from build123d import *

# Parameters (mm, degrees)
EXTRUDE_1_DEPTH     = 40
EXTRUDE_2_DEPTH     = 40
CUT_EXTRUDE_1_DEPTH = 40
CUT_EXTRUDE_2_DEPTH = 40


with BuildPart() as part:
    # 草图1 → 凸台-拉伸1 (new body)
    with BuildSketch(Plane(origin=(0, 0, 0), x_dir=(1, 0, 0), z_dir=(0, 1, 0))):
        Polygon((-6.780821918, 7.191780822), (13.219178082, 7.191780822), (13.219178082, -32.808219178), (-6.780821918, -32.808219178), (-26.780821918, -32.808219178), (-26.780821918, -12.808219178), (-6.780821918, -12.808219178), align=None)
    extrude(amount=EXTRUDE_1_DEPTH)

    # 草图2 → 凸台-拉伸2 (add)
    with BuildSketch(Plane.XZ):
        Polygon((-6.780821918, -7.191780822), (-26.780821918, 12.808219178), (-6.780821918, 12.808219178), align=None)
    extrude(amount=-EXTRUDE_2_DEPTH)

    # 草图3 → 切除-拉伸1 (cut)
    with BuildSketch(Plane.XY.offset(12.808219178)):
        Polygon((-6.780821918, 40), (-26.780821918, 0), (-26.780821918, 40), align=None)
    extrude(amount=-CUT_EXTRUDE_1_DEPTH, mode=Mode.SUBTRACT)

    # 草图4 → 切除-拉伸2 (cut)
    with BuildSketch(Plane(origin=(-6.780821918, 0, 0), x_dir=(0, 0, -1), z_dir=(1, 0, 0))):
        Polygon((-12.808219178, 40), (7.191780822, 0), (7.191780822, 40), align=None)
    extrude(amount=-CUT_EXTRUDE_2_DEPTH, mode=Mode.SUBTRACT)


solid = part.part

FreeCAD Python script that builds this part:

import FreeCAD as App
import Part
import Sketcher
Q = App.Units.Quantity


def add_polygon(sketch, points):
    """Adds a closed chain of lines whose ends are joined by coincident constraints."""
    first, n = sketch.GeometryCount, len(points)
    for a, b in zip(points, points[1:] + points[:1]):
        sketch.addGeometry(Part.LineSegment(App.Vector(*a, 0), App.Vector(*b, 0)), False)
    for i in range(n):
        sketch.addConstraint(Sketcher.Constraint("Coincident", first + i, 2, first + (i + 1) % n, 1))

doc = App.newDocument("Part")
body = doc.addObject("PartDesign::Body", "Body")

# Sketch on XZ plane
sketch1 = body.newObject("Sketcher::SketchObject", "Sketch")
sketch1.AttachmentSupport = (doc.getObject("XZ_Plane"), [""])
sketch1.MapMode = "FlatFace"
add_polygon(sketch1, [(13, -7), (-7, -7), (-7, 13), (-27, 13), (-27, 33), (13, 33)])  # lines 0-5
sketch1.addConstraint(Sketcher.Constraint("Horizontal", 0))
sketch1.addConstraint(Sketcher.Constraint("Vertical", 1))
sketch1.addConstraint(Sketcher.Constraint("Horizontal", 2))
sketch1.addConstraint(Sketcher.Constraint("Vertical", 3))
sketch1.addConstraint(Sketcher.Constraint("Horizontal", 4))
sketch1.addConstraint(Sketcher.Constraint("Vertical", 5))
sketch1.addConstraint(Sketcher.Constraint("Equal", 0, 2))
sketch1.addConstraint(Sketcher.Constraint("Equal", 2, 1))
sketch1.addConstraint(Sketcher.Constraint("Equal", 1, 3))
sketch1.addConstraint(Sketcher.Constraint("DistanceX", 0, 2, 0, 1, Q("20 mm")))
sketch1.addConstraint(Sketcher.Constraint("DistanceX", 0, 2, -1, 1, Q("6.780822 mm")))
sketch1.addConstraint(Sketcher.Constraint("DistanceY", 0, 2, -1, 1, Q("7.191781 mm")))
pad1 = body.newObject("PartDesign::Pad", "Pad")
pad1.Profile = sketch1
pad1.Length = 40
pad1.Reversed = True

# Sketch on XZ plane
sketch2 = body.newObject("Sketcher::SketchObject", "Sketch001")
sketch2.AttachmentSupport = (doc.getObject("XZ_Plane"), [""])
sketch2.MapMode = "FlatFace"
add_polygon(sketch2, [(-27, 13), (-7, -7), (-7, 13)])  # lines 0-2
sketch2.addConstraint(Sketcher.Constraint("Vertical", 1))
sketch2.addConstraint(Sketcher.Constraint("Horizontal", 2))
sketch2.addConstraint(Sketcher.Constraint("Equal", 2, 1))
sketch2.addConstraint(Sketcher.Constraint("DistanceX", 2, 2, 2, 1, Q("20 mm")))
sketch2.addConstraint(Sketcher.Constraint("DistanceX", 0, 2, -1, 1, Q("6.780822 mm")))
sketch2.addConstraint(Sketcher.Constraint("DistanceY", 0, 2, -1, 1, Q("7.191781 mm")))
pad2 = body.newObject("PartDesign::Pad", "Pad001")
pad2.Profile = sketch2
pad2.Length = 40
pad2.Reversed = True

# Sketch on XY plane
sketch3 = body.newObject("Sketcher::SketchObject", "Sketch002")
sketch3.AttachmentSupport = (doc.getObject("XY_Plane"), [""])
sketch3.MapMode = "FlatFace"
sketch3.AttachmentOffset = App.Placement(App.Vector(0, 0, 12.808219), App.Rotation())
add_polygon(sketch3, [(-27, 0), (-7, 40), (-27, 40)])  # lines 0-2
sketch3.addConstraint(Sketcher.Constraint("Horizontal", 1))
sketch3.addConstraint(Sketcher.Constraint("Vertical", 2))
sketch3.addConstraint(Sketcher.Constraint("PointOnObject", 2, 2, -1))
sketch3.addConstraint(Sketcher.Constraint("DistanceX", 1, 2, 1, 1, Q("20 mm")))
sketch3.addConstraint(Sketcher.Constraint("DistanceY", 2, 2, 2, 1, Q("40 mm")))
sketch3.addConstraint(Sketcher.Constraint("DistanceX", 0, 2, -1, 1, Q("6.780822 mm")))
pocket1 = body.newObject("PartDesign::Pocket", "Pocket")
pocket1.Profile = sketch3
pocket1.Length = 40

# Sketch on YZ plane
sketch4 = body.newObject("Sketcher::SketchObject", "Sketch003")
sketch4.AttachmentSupport = (doc.getObject("YZ_Plane"), [""])
sketch4.MapMode = "FlatFace"
sketch4.AttachmentOffset = App.Placement(App.Vector(0, 0, -6.780822), App.Rotation())
add_polygon(sketch4, [(40, 13), (0, -7), (40, -7)])  # lines 0-2
sketch4.addConstraint(Sketcher.Constraint("Horizontal", 1))
sketch4.addConstraint(Sketcher.Constraint("Vertical", 2))
sketch4.addConstraint(Sketcher.Constraint("PointOnObject", 0, 2, -2))
sketch4.addConstraint(Sketcher.Constraint("DistanceX", 1, 1, 1, 2, Q("40 mm")))
sketch4.addConstraint(Sketcher.Constraint("DistanceY", 2, 1, 2, 2, Q("20 mm")))
sketch4.addConstraint(Sketcher.Constraint("DistanceY", 0, 2, -1, 1, Q("7.191781 mm")))
pocket2 = body.newObject("PartDesign::Pocket", "Pocket001")
pocket2.Profile = sketch4
pocket2.Length = 40

doc.recompute()
